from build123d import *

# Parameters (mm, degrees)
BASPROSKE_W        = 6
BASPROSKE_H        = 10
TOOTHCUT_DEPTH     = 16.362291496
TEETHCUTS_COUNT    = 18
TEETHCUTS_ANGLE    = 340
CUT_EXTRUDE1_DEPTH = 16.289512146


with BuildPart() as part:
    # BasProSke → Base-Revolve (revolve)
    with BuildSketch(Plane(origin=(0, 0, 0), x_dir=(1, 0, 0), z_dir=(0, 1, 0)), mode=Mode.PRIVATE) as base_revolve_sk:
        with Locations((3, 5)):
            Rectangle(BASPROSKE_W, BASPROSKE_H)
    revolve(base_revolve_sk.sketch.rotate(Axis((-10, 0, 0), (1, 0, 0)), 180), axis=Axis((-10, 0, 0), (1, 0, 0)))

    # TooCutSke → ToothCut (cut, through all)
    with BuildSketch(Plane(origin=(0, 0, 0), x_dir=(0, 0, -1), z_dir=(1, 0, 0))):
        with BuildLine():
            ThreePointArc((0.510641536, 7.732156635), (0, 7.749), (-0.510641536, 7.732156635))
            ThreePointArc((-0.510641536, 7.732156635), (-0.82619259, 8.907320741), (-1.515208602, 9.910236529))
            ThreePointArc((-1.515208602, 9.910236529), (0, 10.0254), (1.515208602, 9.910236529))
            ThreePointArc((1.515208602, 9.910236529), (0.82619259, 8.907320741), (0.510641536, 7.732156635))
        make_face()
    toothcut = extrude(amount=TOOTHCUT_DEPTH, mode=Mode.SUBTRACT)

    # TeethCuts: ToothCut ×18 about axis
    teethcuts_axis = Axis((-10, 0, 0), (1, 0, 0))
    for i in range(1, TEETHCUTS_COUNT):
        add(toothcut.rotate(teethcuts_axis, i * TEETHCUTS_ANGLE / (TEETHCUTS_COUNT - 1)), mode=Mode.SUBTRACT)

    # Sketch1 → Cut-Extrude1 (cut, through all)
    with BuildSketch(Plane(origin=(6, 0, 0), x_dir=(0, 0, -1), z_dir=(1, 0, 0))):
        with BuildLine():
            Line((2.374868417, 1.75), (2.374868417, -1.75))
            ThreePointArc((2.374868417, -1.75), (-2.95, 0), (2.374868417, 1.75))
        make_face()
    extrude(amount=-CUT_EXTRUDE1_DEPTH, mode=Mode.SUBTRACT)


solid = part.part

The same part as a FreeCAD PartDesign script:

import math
import FreeCAD as App
import Part
import Sketcher

V = App.Vector

doc = App.newDocument("Part")
params = doc.addObject("Spreadsheet::Sheet", "Params")
for row, (alias, value) in enumerate([
    ("sketch1_width", "6 mm"),
    ("sketch1_height", "10 mm"),
    ("revolution_angle", "360 deg"),
    ("sketch2_radius", "3.6 mm"),
    ("sketch3_radius", "2.95 mm"),
    ("sketch3_width", "3.5 mm"),
], start=1):
    params.set(f"A{row}", alias)
    params.set(f"B{row}", "=" + value)
    params.setAlias(f"B{row}", alias)

body = doc.addObject("PartDesign::Body", "Body")

# Sketch on XZ plane
sketch1 = doc.addObject("Sketcher::SketchObject", "Sketch")
body.addObject(sketch1)
sketch1.AttachmentSupport = (doc.XZ_Plane, [""])
sketch1.MapMode = "FlatFace"
sketch1.addGeometry([
    Part.LineSegment(V(0, -10, 0), V(0, 0, 0)),
    Part.LineSegment(V(0, 0, 0), V(6, 0, 0)),
    Part.LineSegment(V(6, 0, 0), V(6, -10, 0)),
    Part.LineSegment(V(6, -10, 0), V(0, -10, 0)),
], False)
sketch1.addConstraint([
    Sketcher.Constraint("Coincident", 0, 2, 1, 1),
    Sketcher.Constraint("Coincident", 1, 2, 2, 1),
    Sketcher.Constraint("Coincident", 2, 2, 3, 1),
    Sketcher.Constraint("Coincident", 3, 2, 0, 1),
    Sketcher.Constraint("Vertical", 0),
    Sketcher.Constraint("Horizontal", 1),
    Sketcher.Constraint("Vertical", 2),
    Sketcher.Constraint("Horizontal", 3),
    Sketcher.Constraint("Coincident", 0, 2, -1, 1),
    Sketcher.Constraint("DistanceX", 1, 1, 1, 2, 6.0),
    Sketcher.Constraint("DistanceY", 0, 1, 0, 2, 10.0),
])
sketch1.setExpression("Constraints[9]", "Params.sketch1_width")
sketch1.setExpression("Constraints[10]", "Params.sketch1_height")
revolution = doc.addObject("PartDesign::Revolution", "Revolution")
body.addObject(revolution)
revolution.Profile = sketch1
revolution.ReferenceAxis = (sketch1, ["H_Axis"])
revolution.setExpression("Angle", "Params.revolution_angle")

# Sketch on YZ plane
sketch2 = doc.addObject("Sketcher::SketchObject", "Sketch001")
body.addObject(sketch2)
sketch2.AttachmentSupport = (doc.YZ_Plane, [""])
sketch2.MapMode = "FlatFace"
sketch2.addGeometry([
    Part.ArcOfCircle(Part.Circle(V(0, 0, 0), V(0, 0, 1), 7.7), math.radians(-3.78), math.radians(3.78)),
    Part.ArcOfCircle(Part.Circle(V(7.4, -4.1, 0), V(0, 0, 1), 3.6), math.radians(46), math.radians(85)),
    Part.ArcOfCircle(Part.Circle(V(0, 0, 0), V(0, 0, 1), 10), math.radians(-8.69), math.radians(8.69)),
    Part.ArcOfCircle(Part.Circle(V(7.4, 4.1, 0), V(0, 0, 1), 3.6), math.radians(-85), math.radians(-46)),
], False)
sketch2.addConstraint([
    Sketcher.Constraint("Coincident", 0, 1, 1, 2),
    Sketcher.Constraint("Coincident", 1, 1, 2, 1),
    Sketcher.Constraint("Coincident", 2, 2, 3, 2),
    Sketcher.Constraint("Coincident", 3, 1, 0, 2),
    Sketcher.Constraint("Coincident", 0, 3, -1, 1),
    Sketcher.Constraint("Coincident", 2, 3, -1, 1),
    Sketcher.Constraint("Equal", 1, 3),
    Sketcher.Constraint("Symmetric", 1, 3, 3, 3, -1),
    Sketcher.Constraint("Radius", 1, 3.6),
    Sketcher.Constraint("Radius", 0, 7.749),
    Sketcher.Constraint("Radius", 2, 10.0254),
    Sketcher.Constraint("DistanceX", -1, 1, 1, 3, 7.399578),
    Sketcher.Constraint("DistanceY", 0, 1, -1, 1, 0.510642),
])
sketch2.setExpression("Constraints[8]", "Params.sketch2_radius")
pocket1 = doc.addObject("PartDesign::Pocket", "Pocket")
body.addObject(pocket1)
pocket1.Profile = sketch2
pocket1.Type = "ThroughAll"
pocket1.Reversed = True
doc.recompute()

polarpattern = doc.addObject("PartDesign::PolarPattern", "PolarPattern")
body.addObject(polarpattern)
polarpattern.Originals = [pocket1]
polarpattern.Axis = (doc.X_Axis, [""])
polarpattern.Angle = 360
polarpattern.Occurrences = 18
body.Tip = polarpattern

# Sketch on YZ plane
sketch3 = doc.addObject("Sketcher::SketchObject", "Sketch002")
body.addObject(sketch3)
sketch3.AttachmentSupport = (doc.YZ_Plane, [""])
sketch3.MapMode = "FlatFace"
sketch3.AttachmentOffset = App.Placement(V(0, 0, 6), App.Rotation())
sketch3.addGeometry([
    Part.LineSegment(V(-1.8, -2.4, 0), V(1.8, -2.4, 0)),
    Part.ArcOfCircle(Part.Circle(V(0, 0, 0), V(0, 0, 1), 3), math.radians(-54), math.radians(234)),
], False)
sketch3.addConstraint([
    Sketcher.Constraint("Coincident", 0, 1, 1, 2),
    Sketcher.Constraint("Coincident", 1, 1, 0, 2),
    Sketcher.Constraint("Horizontal", 0),
    Sketcher.Constraint("Coincident", 1, 3, -1, 1),
    Sketcher.Constraint("Radius", 1, 2.95),
    Sketcher.Constraint("DistanceX", 0, 1, 0, 2, 3.5),
])
sketch3.setExpression("Constraints[4]", "Params.sketch3_radius")
sketch3.setExpression("Constraints[5]", "Params.sketch3_width")
pocket2 = doc.addObject("PartDesign::Pocket", "Pocket001")
body.addObject(pocket2)
pocket2.Profile = sketch3
pocket2.Type = "ThroughAll"

doc.recompute()
